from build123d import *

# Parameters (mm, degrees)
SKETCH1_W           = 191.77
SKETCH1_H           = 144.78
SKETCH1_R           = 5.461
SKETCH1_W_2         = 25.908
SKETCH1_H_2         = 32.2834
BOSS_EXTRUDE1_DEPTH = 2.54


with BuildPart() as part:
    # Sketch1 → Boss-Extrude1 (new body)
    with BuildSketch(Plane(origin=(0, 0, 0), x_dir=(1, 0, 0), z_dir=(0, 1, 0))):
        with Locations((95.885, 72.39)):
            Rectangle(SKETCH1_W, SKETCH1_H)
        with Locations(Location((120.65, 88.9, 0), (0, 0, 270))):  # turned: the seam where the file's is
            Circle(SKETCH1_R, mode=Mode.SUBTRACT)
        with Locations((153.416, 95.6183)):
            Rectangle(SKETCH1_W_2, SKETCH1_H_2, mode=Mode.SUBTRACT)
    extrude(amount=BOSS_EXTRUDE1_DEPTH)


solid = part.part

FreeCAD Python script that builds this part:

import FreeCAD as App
import Part
import Sketcher
Q = App.Units.Quantity

doc = App.newDocument("Part")
body = doc.addObject("PartDesign::Body", "Body")

sketch1 = doc.addObject("Sketcher::SketchObject", "Sketch")
body.addObject(sketch1)
sketch1.AttachmentSupport = (doc.XZ_Plane, [""])
sketch1.MapMode = "FlatFace"
sketch1.addGeometry([
    Part.LineSegment(App.Vector(0, -144.78, 0), App.Vector(0, 0, 0)),
    Part.LineSegment(App.Vector(0, 0, 0), App.Vector(191.77, 0, 0)),
    Part.LineSegment(App.Vector(191.77, 0, 0), App.Vector(191.77, -144.78, 0)),
    Part.LineSegment(App.Vector(191.77, -144.78, 0), App.Vector(0, -144.78, 0)),
    Part.Circle(App.Vector(120.65, -88.9, 0), App.Vector(0, 0, 1), 5.461),
    Part.LineSegment(App.Vector(166.37, -79.4766, 0), App.Vector(140.462, -79.4766, 0)),
    Part.LineSegment(App.Vector(140.462, -79.4766, 0), App.Vector(140.462, -111.76, 0)),
    Part.LineSegment(App.Vector(140.462, -111.76, 0), App.Vector(166.37, -111.76, 0)),
    Part.LineSegment(App.Vector(166.37, -111.76, 0), App.Vector(166.37, -79.4766, 0)),
], False)
sketch1.addConstraint([
    Sketcher.Constraint("Coincident", 0, 2, 1, 1),
    Sketcher.Constraint("Coincident", 1, 2, 2, 1),
    Sketcher.Constraint("Coincident", 2, 2, 3, 1),
    Sketcher.Constraint("Coincident", 3, 2, 0, 1),
    Sketcher.Constraint("Coincident", 5, 2, 6, 1),
    Sketcher.Constraint("Coincident", 6, 2, 7, 1),
    Sketcher.Constraint("Coincident", 7, 2, 8, 1),
    Sketcher.Constraint("Coincident", 8, 2, 5, 1),
    Sketcher.Constraint("Vertical", 0),
    Sketcher.Constraint("Horizontal", 1),
    Sketcher.Constraint("Vertical", 2),
    Sketcher.Constraint("Horizontal", 3),
    Sketcher.Constraint("Horizontal", 5),
    Sketcher.Constraint("Vertical", 6),
    Sketcher.Constraint("Horizontal", 7),
    Sketcher.Constraint("Vertical", 8),
    Sketcher.Constraint("Coincident", 0, 2, -1, 1),
    Sketcher.Constraint("Diameter", 4, Q("0.43 in")),
    Sketcher.Constraint("DistanceY", 0, 1, 0, 2, Q("5.7 in")),
    Sketcher.Constraint("DistanceX", 7, 2, 2, 2, Q("1 in")),
    Sketcher.Constraint("DistanceX", 1, 1, 1, 2, Q("7.55 in")),
    Sketcher.Constraint("DistanceX", 5, 2, 5, 1, Q("1.02 in")),
    Sketcher.Constraint("DistanceY", 4, 3, -1, 1, Q("3.5 in")),
    Sketcher.Constraint("DistanceY", 6, 2, -1, 1, Q("4.4 in")),
    Sketcher.Constraint("DistanceX", 4, 3, 1, 2, Q("2.8 in")),
    Sketcher.Constraint("DistanceY", 6, 2, 6, 1, Q("1.271 in")),
])
pad1 = doc.addObject("PartDesign::Pad", "Pad")
body.addObject(pad1)
pad1.Profile = sketch1
pad1.Length = Q("0.1 in")
pad1.Reversed = True

doc.recompute()
